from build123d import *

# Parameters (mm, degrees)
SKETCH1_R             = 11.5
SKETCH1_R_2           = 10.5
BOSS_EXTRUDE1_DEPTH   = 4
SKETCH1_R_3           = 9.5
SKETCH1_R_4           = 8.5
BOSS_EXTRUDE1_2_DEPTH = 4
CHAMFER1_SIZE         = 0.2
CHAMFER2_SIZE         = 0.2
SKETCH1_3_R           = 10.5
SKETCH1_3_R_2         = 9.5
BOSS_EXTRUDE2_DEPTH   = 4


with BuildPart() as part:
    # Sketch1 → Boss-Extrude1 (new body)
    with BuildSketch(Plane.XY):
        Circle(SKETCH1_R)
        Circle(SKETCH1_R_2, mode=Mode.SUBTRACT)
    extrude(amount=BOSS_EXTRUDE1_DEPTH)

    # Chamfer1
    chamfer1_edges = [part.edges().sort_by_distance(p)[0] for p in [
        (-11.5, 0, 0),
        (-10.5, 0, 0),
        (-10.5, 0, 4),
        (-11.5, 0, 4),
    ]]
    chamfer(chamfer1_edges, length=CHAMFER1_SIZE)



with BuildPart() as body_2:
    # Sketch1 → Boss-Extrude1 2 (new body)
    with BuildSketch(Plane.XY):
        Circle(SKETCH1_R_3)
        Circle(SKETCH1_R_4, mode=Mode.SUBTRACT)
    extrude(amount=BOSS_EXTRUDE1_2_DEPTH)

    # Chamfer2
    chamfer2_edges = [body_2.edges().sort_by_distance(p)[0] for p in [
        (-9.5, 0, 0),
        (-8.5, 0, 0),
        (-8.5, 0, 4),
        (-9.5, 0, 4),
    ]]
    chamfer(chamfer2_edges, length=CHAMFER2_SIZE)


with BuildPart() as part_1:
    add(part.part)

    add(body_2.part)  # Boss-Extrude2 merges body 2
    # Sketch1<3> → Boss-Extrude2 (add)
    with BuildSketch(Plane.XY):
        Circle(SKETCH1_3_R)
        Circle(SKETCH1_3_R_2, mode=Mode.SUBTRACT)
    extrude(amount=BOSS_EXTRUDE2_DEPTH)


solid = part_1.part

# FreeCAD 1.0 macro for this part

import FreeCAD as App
import Part
import Sketcher
Q = App.Units.Quantity


def edges_at(feature, points):
    """Names of the edges that pass closest to the given points."""
    edges = feature.Shape.Edges
    near = lambda p: min(range(len(edges)), key=lambda i: edges[i].distToShape(Part.Vertex(*p))[0])
    return sorted({f"Edge{near(p) + 1}" for p in points})

doc = App.newDocument("Part")
body = doc.addObject("PartDesign::Body", "Body")

sketch1 = body.newObject("Sketcher::SketchObject", "Sketch")
sketch1.AttachmentSupport = (doc.getObject("XY_Plane"), [""])
sketch1.MapMode = "FlatFace"
sketch1.addGeometry(Part.Circle(App.Vector(0, 0, 0), App.Vector(0, 0, 1), 11.5), False)
sketch1.addGeometry(Part.Circle(App.Vector(0, 0, 0), App.Vector(0, 0, 1), 10.5), False)
sketch1.addConstraint(Sketcher.Constraint("Coincident", 0, 3, -1, 1))
sketch1.addConstraint(Sketcher.Constraint("Coincident", 1, 3, -1, 1))
sketch1.addConstraint(Sketcher.Constraint("Diameter", 0, Q("23 mm")))
sketch1.addConstraint(Sketcher.Constraint("Diameter", 1, Q("21 mm")))
pad1 = body.newObject("PartDesign::Pad", "Pad")
pad1.Profile = sketch1
pad1.Length = 4
doc.recompute()

chamfer = body.newObject("PartDesign::Chamfer", "Chamfer")
chamfer.Base = (pad1, edges_at(pad1, [
    (-11.5, 0, 0),
    (-10.5, 0, 0),
    (-10.5, 0, 4),
    (-11.5, 0, 4),
]))
chamfer.Size = 0.2
body2 = doc.addObject("PartDesign::Body", "Body001")

sketch2 = body2.newObject("Sketcher::SketchObject", "Sketch001")
sketch2.AttachmentSupport = (doc.getObject("XY_Plane001"), [""])
sketch2.MapMode = "FlatFace"
sketch2.addGeometry(Part.Circle(App.Vector(0, 0, 0), App.Vector(0, 0, 1), 9.5), False)
sketch2.addGeometry(Part.Circle(App.Vector(0, 0, 0), App.Vector(0, 0, 1), 8.5), False)
sketch2.addConstraint(Sketcher.Constraint("Coincident", 0, 3, -1, 1))
sketch2.addConstraint(Sketcher.Constraint("Coincident", 1, 3, -1, 1))
sketch2.addConstraint(Sketcher.Constraint("Diameter", 0, Q("19 mm")))
sketch2.addConstraint(Sketcher.Constraint("Diameter", 1, Q("17 mm")))
pad2 = body2.newObject("PartDesign::Pad", "Pad001")
pad2.Profile = sketch2
pad2.Length = 4
doc.recompute()

chamfer2 = body2.newObject("PartDesign::Chamfer", "Chamfer001")
chamfer2.Base = (pad2, edges_at(pad2, [
    (-9.5, 0, 0),
    (-8.5, 0, 0),
    (-8.5, 0, 4),
    (-9.5, 0, 4),
]))
chamfer2.Size = 0.2
body.AllowCompound = True
doc.recompute()

boolean = body.newObject("PartDesign::Boolean", "Boolean")
boolean.Type = "Fuse"
boolean.addObjects([body2])

sketch3 = body.newObject("Sketcher::SketchObject", "Sketch002")
sketch3.AttachmentSupport = (doc.getObject("XY_Plane"), [""])
sketch3.MapMode = "FlatFace"
sketch3.addGeometry(Part.Circle(App.Vector(0, 0, 0), App.Vector(0, 0, 1), 10.5), False)
sketch3.addGeometry(Part.Circle(App.Vector(0, 0, 0), App.Vector(0, 0, 1), 9.5), False)
sketch3.addConstraint(Sketcher.Constraint("Coincident", 0, 3, -1, 1))
sketch3.addConstraint(Sketcher.Constraint("Coincident", 1, 3, -1, 1))
sketch3.addConstraint(Sketcher.Constraint("Diameter", 0, Q("21 mm")))
sketch3.addConstraint(Sketcher.Constraint("Diameter", 1, Q("19 mm")))
pad3 = body.newObject("PartDesign::Pad", "Pad002")
pad3.Profile = sketch3
pad3.Length = 4

doc.recompute()
